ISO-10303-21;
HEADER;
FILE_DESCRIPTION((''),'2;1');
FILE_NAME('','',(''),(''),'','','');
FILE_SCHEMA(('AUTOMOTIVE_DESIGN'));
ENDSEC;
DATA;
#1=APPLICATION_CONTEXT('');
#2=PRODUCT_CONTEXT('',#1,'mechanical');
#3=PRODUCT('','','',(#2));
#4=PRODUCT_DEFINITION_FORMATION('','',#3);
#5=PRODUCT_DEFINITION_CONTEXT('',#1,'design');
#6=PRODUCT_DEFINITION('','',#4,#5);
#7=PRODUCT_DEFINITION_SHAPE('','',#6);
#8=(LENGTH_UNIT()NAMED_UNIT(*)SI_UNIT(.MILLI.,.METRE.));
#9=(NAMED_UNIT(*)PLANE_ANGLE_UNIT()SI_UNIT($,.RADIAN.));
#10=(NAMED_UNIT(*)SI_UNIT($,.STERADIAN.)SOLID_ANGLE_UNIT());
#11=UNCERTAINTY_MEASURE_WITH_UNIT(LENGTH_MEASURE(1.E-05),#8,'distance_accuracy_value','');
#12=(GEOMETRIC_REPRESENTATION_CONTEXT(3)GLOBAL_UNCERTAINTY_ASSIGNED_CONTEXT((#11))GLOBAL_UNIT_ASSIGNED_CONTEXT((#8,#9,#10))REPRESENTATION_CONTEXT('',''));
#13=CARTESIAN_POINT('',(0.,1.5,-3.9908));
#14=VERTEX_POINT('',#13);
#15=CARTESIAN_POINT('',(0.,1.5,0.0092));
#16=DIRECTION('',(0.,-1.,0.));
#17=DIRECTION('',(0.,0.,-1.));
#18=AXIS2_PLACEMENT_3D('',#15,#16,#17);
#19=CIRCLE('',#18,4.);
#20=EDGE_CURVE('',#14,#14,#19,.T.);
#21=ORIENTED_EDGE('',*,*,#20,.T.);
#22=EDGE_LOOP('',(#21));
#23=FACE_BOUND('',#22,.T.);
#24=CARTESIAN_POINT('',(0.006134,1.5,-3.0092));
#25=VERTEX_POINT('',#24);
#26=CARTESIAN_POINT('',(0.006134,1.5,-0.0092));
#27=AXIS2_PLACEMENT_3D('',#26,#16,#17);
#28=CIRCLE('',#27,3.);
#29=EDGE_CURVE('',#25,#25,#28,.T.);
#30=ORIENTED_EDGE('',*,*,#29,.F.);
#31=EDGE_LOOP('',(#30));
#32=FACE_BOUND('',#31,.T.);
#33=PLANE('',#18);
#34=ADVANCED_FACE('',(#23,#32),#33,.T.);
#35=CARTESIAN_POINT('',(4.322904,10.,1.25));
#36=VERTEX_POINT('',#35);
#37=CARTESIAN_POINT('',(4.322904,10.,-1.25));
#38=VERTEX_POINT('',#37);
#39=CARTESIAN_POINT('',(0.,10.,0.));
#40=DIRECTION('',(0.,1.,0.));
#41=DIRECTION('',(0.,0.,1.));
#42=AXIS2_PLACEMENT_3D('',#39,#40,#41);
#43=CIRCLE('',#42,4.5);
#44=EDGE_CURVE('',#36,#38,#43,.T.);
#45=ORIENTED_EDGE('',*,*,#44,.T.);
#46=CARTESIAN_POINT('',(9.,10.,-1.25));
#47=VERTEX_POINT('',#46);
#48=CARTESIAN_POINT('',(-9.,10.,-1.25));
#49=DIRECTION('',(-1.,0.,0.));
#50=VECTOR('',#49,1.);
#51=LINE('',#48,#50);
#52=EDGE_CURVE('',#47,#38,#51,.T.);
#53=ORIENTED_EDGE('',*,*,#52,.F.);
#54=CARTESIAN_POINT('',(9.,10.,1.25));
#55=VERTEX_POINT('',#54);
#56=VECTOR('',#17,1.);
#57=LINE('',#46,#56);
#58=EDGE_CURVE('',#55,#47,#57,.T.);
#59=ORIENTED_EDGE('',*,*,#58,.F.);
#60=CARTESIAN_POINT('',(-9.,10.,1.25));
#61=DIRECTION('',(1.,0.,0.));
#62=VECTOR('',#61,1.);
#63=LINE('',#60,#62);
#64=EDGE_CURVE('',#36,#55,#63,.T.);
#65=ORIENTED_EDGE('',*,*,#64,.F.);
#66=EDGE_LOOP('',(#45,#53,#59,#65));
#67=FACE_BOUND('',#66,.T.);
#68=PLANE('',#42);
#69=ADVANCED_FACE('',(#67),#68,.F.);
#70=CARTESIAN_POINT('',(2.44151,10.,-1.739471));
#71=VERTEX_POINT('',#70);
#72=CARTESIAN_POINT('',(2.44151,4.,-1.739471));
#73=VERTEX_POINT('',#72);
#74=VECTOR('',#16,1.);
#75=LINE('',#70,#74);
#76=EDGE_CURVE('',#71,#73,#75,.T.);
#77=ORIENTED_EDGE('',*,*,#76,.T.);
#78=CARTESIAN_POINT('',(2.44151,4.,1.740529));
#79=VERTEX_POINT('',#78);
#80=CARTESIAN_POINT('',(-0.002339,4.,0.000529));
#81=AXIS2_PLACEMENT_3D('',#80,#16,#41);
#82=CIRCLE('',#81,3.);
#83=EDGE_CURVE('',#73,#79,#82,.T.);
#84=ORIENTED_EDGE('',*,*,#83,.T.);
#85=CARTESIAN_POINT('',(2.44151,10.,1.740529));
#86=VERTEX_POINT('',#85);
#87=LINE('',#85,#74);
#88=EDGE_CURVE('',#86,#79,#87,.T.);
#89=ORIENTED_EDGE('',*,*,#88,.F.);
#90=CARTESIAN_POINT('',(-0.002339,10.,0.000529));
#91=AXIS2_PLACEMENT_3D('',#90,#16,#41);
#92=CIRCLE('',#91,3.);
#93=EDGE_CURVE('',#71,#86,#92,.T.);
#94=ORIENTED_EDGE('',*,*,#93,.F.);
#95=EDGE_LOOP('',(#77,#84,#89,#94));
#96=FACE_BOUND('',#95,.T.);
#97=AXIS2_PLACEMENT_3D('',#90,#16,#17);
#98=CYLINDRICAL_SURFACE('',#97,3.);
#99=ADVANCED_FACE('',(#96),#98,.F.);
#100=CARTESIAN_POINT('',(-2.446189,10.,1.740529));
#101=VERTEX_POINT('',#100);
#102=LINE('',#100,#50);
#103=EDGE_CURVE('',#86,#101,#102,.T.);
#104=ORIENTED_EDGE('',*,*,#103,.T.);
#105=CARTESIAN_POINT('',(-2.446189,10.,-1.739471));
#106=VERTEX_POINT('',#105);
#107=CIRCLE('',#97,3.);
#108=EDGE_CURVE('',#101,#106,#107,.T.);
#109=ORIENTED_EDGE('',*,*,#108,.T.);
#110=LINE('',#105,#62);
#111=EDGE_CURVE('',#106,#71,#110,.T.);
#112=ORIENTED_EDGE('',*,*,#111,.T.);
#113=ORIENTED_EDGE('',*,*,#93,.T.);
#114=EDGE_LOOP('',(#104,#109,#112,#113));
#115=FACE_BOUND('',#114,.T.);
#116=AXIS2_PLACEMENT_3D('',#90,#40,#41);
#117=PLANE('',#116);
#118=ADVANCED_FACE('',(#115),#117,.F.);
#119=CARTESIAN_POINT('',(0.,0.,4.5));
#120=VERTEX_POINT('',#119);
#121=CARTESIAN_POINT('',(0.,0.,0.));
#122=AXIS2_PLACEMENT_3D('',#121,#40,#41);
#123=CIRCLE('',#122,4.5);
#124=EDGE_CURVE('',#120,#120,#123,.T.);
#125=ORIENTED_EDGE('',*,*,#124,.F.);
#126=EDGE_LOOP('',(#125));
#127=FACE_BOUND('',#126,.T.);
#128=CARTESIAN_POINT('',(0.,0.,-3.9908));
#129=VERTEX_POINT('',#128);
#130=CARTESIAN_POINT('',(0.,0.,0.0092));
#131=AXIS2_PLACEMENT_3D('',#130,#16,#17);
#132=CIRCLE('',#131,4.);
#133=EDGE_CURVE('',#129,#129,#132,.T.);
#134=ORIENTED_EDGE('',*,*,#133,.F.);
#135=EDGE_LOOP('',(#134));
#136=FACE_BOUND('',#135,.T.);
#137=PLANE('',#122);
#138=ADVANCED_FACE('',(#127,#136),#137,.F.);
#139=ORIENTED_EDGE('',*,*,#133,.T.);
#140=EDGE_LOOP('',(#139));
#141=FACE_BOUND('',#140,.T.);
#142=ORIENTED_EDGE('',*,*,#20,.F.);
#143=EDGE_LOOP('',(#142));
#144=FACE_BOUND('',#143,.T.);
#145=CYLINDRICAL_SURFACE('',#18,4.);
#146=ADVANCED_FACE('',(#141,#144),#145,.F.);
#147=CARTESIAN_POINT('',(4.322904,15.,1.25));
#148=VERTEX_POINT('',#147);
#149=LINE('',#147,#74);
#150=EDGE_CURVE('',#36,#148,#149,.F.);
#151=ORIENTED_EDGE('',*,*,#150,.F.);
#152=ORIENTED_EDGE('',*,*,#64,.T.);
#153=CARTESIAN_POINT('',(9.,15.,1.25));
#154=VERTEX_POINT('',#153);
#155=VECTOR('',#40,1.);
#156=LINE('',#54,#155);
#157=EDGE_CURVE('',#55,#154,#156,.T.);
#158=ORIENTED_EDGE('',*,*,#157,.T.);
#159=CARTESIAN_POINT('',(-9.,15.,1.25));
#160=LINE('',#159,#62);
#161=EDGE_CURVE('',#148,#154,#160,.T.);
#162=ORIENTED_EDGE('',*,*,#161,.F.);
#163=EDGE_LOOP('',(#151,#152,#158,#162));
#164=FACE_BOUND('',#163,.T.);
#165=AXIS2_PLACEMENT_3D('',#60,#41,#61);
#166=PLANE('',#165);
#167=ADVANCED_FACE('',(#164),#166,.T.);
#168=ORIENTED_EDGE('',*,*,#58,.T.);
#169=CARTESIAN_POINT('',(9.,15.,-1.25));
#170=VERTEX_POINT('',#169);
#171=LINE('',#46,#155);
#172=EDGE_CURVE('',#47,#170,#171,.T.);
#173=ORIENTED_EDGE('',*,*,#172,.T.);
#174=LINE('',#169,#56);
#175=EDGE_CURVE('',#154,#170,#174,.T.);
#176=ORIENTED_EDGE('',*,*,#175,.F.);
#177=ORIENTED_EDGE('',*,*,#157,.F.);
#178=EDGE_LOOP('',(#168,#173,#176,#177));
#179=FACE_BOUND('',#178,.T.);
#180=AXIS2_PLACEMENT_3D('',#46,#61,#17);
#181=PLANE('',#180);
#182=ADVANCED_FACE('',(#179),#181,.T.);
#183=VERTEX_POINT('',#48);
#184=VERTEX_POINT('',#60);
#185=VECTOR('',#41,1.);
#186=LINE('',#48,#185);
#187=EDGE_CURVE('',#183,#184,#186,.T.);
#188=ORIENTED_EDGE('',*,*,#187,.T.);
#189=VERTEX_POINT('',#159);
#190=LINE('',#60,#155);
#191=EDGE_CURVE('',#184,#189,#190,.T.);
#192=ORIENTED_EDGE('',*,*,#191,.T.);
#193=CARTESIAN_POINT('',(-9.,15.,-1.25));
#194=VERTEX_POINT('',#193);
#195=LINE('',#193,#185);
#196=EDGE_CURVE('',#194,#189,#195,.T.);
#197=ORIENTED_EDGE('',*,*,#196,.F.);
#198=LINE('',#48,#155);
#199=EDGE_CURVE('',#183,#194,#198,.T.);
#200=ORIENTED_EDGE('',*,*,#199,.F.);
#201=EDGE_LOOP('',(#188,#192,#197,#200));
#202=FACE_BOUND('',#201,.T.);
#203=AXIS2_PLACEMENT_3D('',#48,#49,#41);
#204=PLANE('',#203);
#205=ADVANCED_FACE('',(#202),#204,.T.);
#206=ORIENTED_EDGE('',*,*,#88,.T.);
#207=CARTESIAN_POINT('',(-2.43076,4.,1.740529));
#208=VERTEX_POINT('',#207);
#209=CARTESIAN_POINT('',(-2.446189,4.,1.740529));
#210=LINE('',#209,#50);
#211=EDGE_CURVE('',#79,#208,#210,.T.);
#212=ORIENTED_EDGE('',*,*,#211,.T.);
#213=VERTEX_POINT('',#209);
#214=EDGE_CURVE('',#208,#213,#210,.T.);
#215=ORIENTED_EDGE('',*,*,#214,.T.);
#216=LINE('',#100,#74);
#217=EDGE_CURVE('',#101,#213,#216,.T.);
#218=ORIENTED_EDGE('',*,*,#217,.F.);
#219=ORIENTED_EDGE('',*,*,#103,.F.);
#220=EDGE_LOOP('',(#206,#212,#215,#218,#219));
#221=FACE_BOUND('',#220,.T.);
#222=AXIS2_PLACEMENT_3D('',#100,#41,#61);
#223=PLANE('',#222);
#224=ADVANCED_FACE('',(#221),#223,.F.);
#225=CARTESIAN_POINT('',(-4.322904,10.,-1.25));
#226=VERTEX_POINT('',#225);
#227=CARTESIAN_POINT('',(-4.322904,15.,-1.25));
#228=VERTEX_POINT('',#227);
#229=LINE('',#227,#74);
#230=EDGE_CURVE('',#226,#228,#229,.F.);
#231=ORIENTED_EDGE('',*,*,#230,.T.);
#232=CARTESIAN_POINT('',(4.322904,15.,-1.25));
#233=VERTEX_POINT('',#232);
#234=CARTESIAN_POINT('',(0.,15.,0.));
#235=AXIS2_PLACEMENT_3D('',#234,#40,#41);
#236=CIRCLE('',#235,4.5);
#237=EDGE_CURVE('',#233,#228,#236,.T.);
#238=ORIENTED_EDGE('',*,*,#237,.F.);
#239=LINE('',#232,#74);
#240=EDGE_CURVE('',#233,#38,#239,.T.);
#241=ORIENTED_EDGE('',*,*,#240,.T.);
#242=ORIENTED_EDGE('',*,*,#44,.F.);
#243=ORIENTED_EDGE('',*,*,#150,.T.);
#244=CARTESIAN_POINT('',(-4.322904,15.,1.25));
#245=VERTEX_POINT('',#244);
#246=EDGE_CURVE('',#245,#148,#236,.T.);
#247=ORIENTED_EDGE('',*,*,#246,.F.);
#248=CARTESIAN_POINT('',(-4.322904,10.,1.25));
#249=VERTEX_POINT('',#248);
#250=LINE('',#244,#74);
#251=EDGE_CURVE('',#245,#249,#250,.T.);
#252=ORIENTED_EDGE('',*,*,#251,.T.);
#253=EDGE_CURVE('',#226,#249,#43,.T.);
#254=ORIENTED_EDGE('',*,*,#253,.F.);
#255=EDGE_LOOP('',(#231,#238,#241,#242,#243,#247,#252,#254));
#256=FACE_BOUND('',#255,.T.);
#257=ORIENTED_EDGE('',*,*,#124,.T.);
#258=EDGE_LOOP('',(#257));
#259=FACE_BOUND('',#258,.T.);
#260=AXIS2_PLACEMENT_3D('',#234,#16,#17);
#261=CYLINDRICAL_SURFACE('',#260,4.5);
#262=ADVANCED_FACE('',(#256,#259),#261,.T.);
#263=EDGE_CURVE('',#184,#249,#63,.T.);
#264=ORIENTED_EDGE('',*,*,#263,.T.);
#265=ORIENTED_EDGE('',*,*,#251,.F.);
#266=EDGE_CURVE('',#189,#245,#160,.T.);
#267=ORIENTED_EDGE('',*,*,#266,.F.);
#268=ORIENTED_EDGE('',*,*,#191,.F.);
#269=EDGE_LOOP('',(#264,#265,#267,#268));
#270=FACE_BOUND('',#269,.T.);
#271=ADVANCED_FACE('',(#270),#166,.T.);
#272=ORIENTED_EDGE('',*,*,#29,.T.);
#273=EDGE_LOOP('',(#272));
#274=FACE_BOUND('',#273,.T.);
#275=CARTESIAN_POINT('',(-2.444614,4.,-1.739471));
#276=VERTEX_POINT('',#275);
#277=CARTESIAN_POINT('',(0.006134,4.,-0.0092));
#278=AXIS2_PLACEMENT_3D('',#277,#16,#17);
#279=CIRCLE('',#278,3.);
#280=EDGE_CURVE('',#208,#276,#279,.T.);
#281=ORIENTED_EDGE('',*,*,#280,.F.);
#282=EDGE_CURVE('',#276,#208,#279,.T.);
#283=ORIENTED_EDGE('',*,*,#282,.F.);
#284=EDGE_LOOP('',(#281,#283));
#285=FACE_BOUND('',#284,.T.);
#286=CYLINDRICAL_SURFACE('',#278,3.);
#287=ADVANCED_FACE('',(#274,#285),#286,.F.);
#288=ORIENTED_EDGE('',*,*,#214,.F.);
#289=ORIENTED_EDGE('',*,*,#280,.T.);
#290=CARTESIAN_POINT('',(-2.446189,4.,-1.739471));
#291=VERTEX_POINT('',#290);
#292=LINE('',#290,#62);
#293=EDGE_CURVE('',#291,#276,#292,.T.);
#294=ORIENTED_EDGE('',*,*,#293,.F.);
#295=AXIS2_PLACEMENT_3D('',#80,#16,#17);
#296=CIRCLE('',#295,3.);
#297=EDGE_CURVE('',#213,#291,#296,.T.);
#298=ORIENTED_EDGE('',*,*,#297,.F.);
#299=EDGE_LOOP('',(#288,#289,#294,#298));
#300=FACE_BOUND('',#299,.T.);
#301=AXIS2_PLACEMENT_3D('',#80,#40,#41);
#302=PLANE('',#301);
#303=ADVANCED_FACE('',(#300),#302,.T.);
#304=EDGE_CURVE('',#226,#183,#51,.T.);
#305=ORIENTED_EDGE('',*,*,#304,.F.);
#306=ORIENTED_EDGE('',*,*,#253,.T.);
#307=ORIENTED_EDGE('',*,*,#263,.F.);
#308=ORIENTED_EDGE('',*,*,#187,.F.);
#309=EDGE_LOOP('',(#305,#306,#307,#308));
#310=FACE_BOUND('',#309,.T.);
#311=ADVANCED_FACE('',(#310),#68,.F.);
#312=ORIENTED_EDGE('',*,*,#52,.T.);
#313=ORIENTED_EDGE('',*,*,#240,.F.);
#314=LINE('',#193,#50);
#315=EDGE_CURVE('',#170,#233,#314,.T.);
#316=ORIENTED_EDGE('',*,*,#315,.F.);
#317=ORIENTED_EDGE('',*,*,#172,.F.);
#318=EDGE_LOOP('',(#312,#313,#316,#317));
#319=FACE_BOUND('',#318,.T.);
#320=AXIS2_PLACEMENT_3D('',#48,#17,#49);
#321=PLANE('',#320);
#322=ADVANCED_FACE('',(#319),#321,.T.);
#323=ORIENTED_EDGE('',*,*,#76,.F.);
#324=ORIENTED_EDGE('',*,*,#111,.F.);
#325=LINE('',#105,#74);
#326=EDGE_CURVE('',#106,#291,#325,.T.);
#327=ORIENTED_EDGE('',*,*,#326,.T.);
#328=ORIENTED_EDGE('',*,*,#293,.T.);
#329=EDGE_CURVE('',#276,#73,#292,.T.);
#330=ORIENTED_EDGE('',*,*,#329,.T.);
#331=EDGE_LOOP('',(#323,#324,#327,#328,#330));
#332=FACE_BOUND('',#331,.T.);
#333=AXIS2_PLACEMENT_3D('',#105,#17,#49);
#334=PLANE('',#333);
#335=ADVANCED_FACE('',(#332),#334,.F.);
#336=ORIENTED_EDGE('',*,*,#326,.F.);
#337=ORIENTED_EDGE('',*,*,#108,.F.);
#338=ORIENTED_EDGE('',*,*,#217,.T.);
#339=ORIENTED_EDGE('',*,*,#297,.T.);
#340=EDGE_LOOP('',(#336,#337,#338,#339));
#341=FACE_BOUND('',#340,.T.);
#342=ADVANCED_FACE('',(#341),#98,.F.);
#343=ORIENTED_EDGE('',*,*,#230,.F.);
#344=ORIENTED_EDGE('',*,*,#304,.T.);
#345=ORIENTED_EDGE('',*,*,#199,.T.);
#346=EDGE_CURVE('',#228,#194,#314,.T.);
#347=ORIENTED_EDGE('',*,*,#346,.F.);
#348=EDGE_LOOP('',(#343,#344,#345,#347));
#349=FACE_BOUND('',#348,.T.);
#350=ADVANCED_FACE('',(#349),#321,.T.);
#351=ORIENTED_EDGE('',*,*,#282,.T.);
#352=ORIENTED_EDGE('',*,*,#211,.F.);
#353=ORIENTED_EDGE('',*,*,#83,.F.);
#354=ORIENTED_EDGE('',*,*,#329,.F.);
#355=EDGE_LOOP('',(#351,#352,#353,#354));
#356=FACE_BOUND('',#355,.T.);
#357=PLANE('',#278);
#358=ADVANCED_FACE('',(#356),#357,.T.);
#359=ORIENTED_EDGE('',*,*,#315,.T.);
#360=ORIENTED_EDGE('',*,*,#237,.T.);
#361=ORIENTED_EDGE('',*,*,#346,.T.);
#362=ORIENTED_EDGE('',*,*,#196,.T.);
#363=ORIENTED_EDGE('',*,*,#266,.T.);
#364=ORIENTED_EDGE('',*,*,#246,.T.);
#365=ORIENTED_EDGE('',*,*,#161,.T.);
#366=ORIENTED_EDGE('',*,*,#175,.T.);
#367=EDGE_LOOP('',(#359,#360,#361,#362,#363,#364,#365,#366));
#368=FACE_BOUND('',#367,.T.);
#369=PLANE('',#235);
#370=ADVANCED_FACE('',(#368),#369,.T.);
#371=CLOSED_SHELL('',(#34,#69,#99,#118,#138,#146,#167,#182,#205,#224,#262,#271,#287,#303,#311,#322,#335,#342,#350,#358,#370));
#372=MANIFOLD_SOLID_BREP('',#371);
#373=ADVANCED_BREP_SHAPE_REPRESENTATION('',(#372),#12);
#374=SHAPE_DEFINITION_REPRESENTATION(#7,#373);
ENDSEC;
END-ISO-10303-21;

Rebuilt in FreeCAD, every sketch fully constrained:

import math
import FreeCAD as App
import Part
import Sketcher
Q = App.Units.Quantity

doc = App.newDocument("Part")
body = doc.addObject("PartDesign::Body", "Body")

sketch1 = body.newObject("Sketcher::SketchObject", "Sketch")
sketch1.AttachmentSupport = (doc.getObject("XZ_Plane"), [""])
sketch1.MapMode = "FlatFace"
sketch1.addGeometry(Part.Circle(App.Vector(0, 0, 0), App.Vector(0, 0, 1), 4.5), False)
sketch1.addConstraint([
    Sketcher.Constraint("Coincident", 0, 3, -1, 1),
    Sketcher.Constraint("Diameter", 0, Q("9 mm")),
])
pad1 = body.newObject("PartDesign::Pad", "Pad")
pad1.Profile = sketch1
pad1.Length = 15
pad1.Reversed = True

sketch2 = body.newObject("Sketcher::SketchObject", "Sketch001")
sketch2.AttachmentSupport = (doc.getObject("XZ_Plane"), [""])
sketch2.MapMode = "FlatFace"
sketch2.addGeometry(Part.Circle(App.Vector(0, 0.0092, 0), App.Vector(0, 0, 1), 4), False)
sketch2.addConstraint([
    Sketcher.Constraint("PointOnObject", 0, 3, -2),
    Sketcher.Constraint("Diameter", 0, Q("8 mm")),
    Sketcher.Constraint("DistanceY", -1, 1, 0, 3, Q("0.0092 mm")),
])
pocket1 = body.newObject("PartDesign::Pocket", "Pocket")
pocket1.Profile = sketch2
pocket1.Length = 1.5

sketch3 = body.newObject("Sketcher::SketchObject", "Sketch002")
sketch3.AttachmentSupport = (doc.getObject("XZ_Plane"), [""])
sketch3.MapMode = "FlatFace"
sketch3.AttachmentOffset = App.Placement(App.Vector(0, 0, -1.5), App.Rotation())
sketch3.addGeometry(Part.Circle(App.Vector(0.006134, -0.0092, 0), App.Vector(0, 0, 1), 3), False)
sketch3.addConstraint([
    Sketcher.Constraint("Diameter", 0, Q("6 mm")),
    Sketcher.Constraint("DistanceY", 0, 3, -1, 1, Q("0.0092 mm")),
    Sketcher.Constraint("DistanceX", -1, 1, 0, 3, Q("0.006134 mm")),
])
pocket2 = body.newObject("PartDesign::Pocket", "Pocket001")
pocket2.Profile = sketch3
pocket2.Length = 2.5

sketch4 = body.newObject("Sketcher::SketchObject", "Sketch003")
sketch4.AttachmentSupport = (doc.getObject("XZ_Plane"), [""])
sketch4.MapMode = "FlatFace"
sketch4.AttachmentOffset = App.Placement(App.Vector(0, 0, -4), App.Rotation())
sketch4.addGeometry([
    Part.LineSegment(App.Vector(-2.446189, -1.739471, 0), App.Vector(2.44151, -1.739471, 0)),
    Part.ArcOfCircle(Part.Circle(App.Vector(-0.002339, 0.000529, 0), App.Vector(0, 0, 1), 3), math.radians(-35.450543), math.radians(35.450543)),
    Part.LineSegment(App.Vector(2.44151, 1.740529, 0), App.Vector(-2.446189, 1.740529, 0)),
    Part.ArcOfCircle(Part.Circle(App.Vector(-0.002339, 0.000529, 0), App.Vector(0, 0, 1), 3), math.radians(144.549457), math.radians(215.450543)),
], False)
sketch4.addConstraint([
    Sketcher.Constraint("Coincident", 0, 2, 1, 1),
    Sketcher.Constraint("Coincident", 1, 2, 2, 1),
    Sketcher.Constraint("Coincident", 2, 2, 3, 1),
    Sketcher.Constraint("Coincident", 3, 2, 0, 1),
    Sketcher.Constraint("Horizontal", 0),
    Sketcher.Constraint("Horizontal", 2),
    Sketcher.Constraint("Coincident", 3, 3, 1, 3),
    Sketcher.Constraint("Equal", 1, 3),
    Sketcher.Constraint("Vertical", 0, 2, 1, 2),
    Sketcher.Constraint("Radius", 1, Q("3 mm")),
    Sketcher.Constraint("DistanceY", 0, 2, 1, 3, Q("1.74 mm")),
    Sketcher.Constraint("DistanceX", 1, 3, -1, 1, Q("0.002339 mm")),
    Sketcher.Constraint("DistanceY", -1, 1, 1, 3, Q("0.000529 mm")),
])
pocket3 = body.newObject("PartDesign::Pocket", "Pocket002")
pocket3.Profile = sketch4
pocket3.Length = 6

sketch5 = body.newObject("Sketcher::SketchObject", "Sketch004")
sketch5.AttachmentSupport = (doc.getObject("XZ_Plane"), [""])
sketch5.MapMode = "FlatFace"
sketch5.AttachmentOffset = App.Placement(App.Vector(0, 0, -15), App.Rotation())
sketch5.addGeometry([
    Part.LineSegment(App.Vector(-9, -1.25, 0), App.Vector(-9, 1.25, 0)),
    Part.LineSegment(App.Vector(-9, 1.25, 0), App.Vector(9, 1.25, 0)),
    Part.LineSegment(App.Vector(9, 1.25, 0), App.Vector(9, -1.25, 0)),
    Part.LineSegment(App.Vector(9, -1.25, 0), App.Vector(-9, -1.25, 0)),
], False)
sketch5.addConstraint([
    Sketcher.Constraint("Coincident", 0, 2, 1, 1),
    Sketcher.Constraint("Coincident", 1, 2, 2, 1),
    Sketcher.Constraint("Coincident", 2, 2, 3, 1),
    Sketcher.Constraint("Coincident", 3, 2, 0, 1),
    Sketcher.Constraint("Vertical", 0),
    Sketcher.Constraint("Horizontal", 1),
    Sketcher.Constraint("Vertical", 2),
    Sketcher.Constraint("Horizontal", 3),
    Sketcher.Constraint("Symmetric", 0, 2, 2, 2, -1, 1),
    Sketcher.Constraint("DistanceX", 1, 1, 1, 2, Q("18 mm")),
    Sketcher.Constraint("DistanceY", 0, 1, 0, 2, Q("2.5 mm")),
])
pad2 = body.newObject("PartDesign::Pad", "Pad001")
pad2.Profile = sketch5
pad2.Length = 5

doc.recompute()
